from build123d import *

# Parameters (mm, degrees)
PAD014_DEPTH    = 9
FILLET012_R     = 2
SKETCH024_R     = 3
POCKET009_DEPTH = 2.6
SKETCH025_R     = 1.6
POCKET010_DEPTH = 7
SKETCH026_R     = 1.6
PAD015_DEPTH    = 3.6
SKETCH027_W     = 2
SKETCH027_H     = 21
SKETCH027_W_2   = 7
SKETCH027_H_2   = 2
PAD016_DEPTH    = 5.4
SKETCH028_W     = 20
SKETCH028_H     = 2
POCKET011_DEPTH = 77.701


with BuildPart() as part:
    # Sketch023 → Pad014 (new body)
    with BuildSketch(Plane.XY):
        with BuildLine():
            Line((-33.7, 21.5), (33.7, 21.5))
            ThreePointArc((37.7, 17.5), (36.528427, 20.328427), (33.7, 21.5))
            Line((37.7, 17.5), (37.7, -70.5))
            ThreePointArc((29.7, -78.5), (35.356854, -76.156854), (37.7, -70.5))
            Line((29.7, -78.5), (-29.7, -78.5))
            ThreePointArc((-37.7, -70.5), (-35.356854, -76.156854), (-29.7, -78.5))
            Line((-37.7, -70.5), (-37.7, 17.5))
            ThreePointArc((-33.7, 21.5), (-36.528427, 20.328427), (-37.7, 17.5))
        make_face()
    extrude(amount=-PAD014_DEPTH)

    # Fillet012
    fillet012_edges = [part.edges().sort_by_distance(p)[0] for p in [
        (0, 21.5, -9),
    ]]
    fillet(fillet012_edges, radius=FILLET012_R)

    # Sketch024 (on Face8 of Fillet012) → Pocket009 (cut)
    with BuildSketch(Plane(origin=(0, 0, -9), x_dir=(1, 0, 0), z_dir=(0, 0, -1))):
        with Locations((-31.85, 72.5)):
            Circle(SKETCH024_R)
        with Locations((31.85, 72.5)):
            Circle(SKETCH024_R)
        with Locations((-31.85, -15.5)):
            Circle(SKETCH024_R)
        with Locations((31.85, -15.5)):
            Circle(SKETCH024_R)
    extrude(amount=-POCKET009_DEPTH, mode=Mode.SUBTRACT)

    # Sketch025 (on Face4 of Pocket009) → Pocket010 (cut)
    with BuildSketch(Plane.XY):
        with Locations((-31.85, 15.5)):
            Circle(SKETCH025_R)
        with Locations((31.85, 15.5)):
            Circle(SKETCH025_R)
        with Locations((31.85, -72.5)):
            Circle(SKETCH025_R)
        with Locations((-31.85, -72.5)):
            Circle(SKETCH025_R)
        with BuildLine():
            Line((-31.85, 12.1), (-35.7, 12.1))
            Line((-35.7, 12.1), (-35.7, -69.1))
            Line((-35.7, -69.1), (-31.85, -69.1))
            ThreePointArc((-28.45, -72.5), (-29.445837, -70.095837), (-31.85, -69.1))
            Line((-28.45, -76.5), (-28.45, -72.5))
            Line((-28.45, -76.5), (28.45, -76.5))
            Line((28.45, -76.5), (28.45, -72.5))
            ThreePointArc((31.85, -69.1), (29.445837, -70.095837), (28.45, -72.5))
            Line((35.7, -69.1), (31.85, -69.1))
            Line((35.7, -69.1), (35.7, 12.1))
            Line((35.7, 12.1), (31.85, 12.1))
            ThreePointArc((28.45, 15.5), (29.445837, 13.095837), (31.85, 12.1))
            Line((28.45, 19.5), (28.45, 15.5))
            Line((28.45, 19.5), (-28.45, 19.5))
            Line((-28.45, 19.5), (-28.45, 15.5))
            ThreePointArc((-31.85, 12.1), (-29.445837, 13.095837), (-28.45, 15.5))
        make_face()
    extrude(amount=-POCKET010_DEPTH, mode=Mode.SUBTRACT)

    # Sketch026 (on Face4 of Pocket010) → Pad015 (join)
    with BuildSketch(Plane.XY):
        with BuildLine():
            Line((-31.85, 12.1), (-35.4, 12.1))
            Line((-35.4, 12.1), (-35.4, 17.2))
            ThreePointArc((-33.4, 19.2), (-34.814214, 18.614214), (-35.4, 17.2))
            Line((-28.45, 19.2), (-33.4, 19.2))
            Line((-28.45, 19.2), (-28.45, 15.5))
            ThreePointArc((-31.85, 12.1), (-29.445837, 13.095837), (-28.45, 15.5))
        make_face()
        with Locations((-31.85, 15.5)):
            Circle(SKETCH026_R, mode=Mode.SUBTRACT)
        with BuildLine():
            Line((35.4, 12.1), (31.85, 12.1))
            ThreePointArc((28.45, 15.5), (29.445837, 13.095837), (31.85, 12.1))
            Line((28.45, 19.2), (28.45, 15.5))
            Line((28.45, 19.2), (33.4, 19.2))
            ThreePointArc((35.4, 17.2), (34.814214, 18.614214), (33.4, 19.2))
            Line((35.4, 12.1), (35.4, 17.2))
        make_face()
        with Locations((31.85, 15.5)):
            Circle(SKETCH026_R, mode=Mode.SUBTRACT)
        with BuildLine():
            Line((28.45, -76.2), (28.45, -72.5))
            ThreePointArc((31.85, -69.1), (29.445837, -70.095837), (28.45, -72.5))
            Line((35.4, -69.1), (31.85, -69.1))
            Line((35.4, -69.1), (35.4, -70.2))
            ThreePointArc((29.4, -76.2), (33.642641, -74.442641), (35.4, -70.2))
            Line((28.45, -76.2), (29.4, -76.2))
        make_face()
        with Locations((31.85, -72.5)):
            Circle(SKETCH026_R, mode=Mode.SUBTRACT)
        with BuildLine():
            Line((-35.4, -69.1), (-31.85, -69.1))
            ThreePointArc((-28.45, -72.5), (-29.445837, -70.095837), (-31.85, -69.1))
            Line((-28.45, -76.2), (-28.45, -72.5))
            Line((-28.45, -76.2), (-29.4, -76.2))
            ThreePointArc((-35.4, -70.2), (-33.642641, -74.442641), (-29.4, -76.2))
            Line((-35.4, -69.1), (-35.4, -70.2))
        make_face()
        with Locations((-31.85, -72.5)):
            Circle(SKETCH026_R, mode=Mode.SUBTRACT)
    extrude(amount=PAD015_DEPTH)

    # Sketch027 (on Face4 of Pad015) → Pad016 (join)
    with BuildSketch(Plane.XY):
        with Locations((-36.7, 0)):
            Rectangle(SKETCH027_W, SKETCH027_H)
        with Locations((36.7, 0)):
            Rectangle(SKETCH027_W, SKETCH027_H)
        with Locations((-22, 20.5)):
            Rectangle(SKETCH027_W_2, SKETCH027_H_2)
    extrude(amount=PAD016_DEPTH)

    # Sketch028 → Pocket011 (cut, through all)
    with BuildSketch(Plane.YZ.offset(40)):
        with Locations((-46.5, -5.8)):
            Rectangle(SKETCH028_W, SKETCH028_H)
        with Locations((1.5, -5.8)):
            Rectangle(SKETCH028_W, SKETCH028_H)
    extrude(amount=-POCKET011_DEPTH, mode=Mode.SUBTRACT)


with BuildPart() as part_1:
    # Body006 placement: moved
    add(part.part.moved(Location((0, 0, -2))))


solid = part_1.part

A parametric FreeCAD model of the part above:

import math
import FreeCAD as App
import Part
import Sketcher
Q = App.Units.Quantity


def edges_at(feature, points):
    """Names of the edges that pass closest to the given points."""
    edges = feature.Shape.Edges
    near = lambda p: min(range(len(edges)), key=lambda i: edges[i].distToShape(Part.Vertex(*p))[0])
    return sorted({f"Edge{near(p) + 1}" for p in points})

doc = App.newDocument("Part")
body = doc.addObject("PartDesign::Body", "Body")

# Sketch on XY plane
sketch1 = doc.addObject("Sketcher::SketchObject", "Sketch")
body.addObject(sketch1)
sketch1.AttachmentSupport = (doc.XY_Plane, [""])
sketch1.MapMode = "FlatFace"
sketch1.addGeometry([
    Part.LineSegment(App.Vector(33.7, 21.5, 0), App.Vector(-33.7, 21.5, 0)),  # 0
    Part.ArcOfCircle(Part.Circle(App.Vector(-33.7, 17.5, 0), App.Vector(0, 0, 1), 4), math.radians(90), math.radians(180)),  # 1
    Part.LineSegment(App.Vector(-37.7, 17.5, 0), App.Vector(-37.7, -70.5, 0)),  # 2
    Part.ArcOfCircle(Part.Circle(App.Vector(-29.7, -70.5, 0), App.Vector(0, 0, 1), 8), math.radians(-180), math.radians(-90)),  # 3
    Part.LineSegment(App.Vector(-29.7, -78.5, 0), App.Vector(29.7, -78.5, 0)),  # 4
    Part.ArcOfCircle(Part.Circle(App.Vector(29.7, -70.5, 0), App.Vector(0, 0, 1), 8), math.radians(-90), math.radians(0)),  # 5
    Part.LineSegment(App.Vector(37.7, -70.5, 0), App.Vector(37.7, 17.5, 0)),  # 6
    Part.ArcOfCircle(Part.Circle(App.Vector(33.7, 17.5, 0), App.Vector(0, 0, 1), 4), math.radians(0), math.radians(90)),  # 7
], False)
sketch1.addConstraint([
    Sketcher.Constraint("Tangent", 0, 2, 1, 1),
    Sketcher.Constraint("Tangent", 1, 2, 2, 1),
    Sketcher.Constraint("Tangent", 2, 2, 3, 1),
    Sketcher.Constraint("Tangent", 3, 2, 4, 1),
    Sketcher.Constraint("Tangent", 4, 2, 5, 1),
    Sketcher.Constraint("Tangent", 5, 2, 6, 1),
    Sketcher.Constraint("Tangent", 6, 2, 7, 1),
    Sketcher.Constraint("Tangent", 7, 2, 0, 1),
    Sketcher.Constraint("Horizontal", 0),
    Sketcher.Constraint("Vertical", 2),
    Sketcher.Constraint("Horizontal", 4),
    Sketcher.Constraint("Vertical", 6),
    Sketcher.Constraint("Equal", 3, 5),
    Sketcher.Constraint("Equal", 1, 7),
    Sketcher.Constraint("Radius", 1, Q("4 mm")),
    Sketcher.Constraint("Radius", 3, Q("8.000001 mm")),
    Sketcher.Constraint("DistanceY", 2, 2, 2, 1, Q("88 mm")),
    Sketcher.Constraint("DistanceX", 0, 2, 0, 1, Q("67.4 mm")),
    Sketcher.Constraint("DistanceX", 1, 3, -1, 1, Q("33.7 mm")),
    Sketcher.Constraint("DistanceY", -1, 1, 1, 3, Q("17.5 mm")),
])
pad1 = doc.addObject("PartDesign::Pad", "Pad")
body.addObject(pad1)
pad1.Profile = sketch1
pad1.Length = 9
pad1.Reversed = True
doc.recompute()

fillet = doc.addObject("PartDesign::Fillet", "Fillet")
body.addObject(fillet)
fillet.Base = (pad1, edges_at(pad1, [(0, 21.5, -9)]))
fillet.Radius = 2

# Sketch on XY plane
sketch2 = doc.addObject("Sketcher::SketchObject", "Sketch001")
body.addObject(sketch2)
sketch2.AttachmentSupport = (doc.XY_Plane, [""])
sketch2.MapMode = "FlatFace"
sketch2.AttachmentOffset = App.Placement(App.Vector(0, 0, -9), App.Rotation())
sketch2.addGeometry([
    Part.Circle(App.Vector(-31.9, -72.5, 0), App.Vector(0, 0, 1), 3),
    Part.Circle(App.Vector(31.9, -72.5, 0), App.Vector(0, 0, 1), 3),
    Part.Circle(App.Vector(-31.9, 15.5, 0), App.Vector(0, 0, 1), 3),
    Part.Circle(App.Vector(31.9, 15.5, 0), App.Vector(0, 0, 1), 3),
], False)
sketch2.addConstraint([
    Sketcher.Constraint("Equal", 0, 1),
    Sketcher.Constraint("Equal", 1, 2),
    Sketcher.Constraint("Equal", 2, 3),
    Sketcher.Constraint("Symmetric", 0, 3, 1, 3, -2),
    Sketcher.Constraint("Symmetric", 2, 3, 3, 3, -2),
    Sketcher.Constraint("Vertical", 0, 3, 2, 3),
    Sketcher.Constraint("Diameter", 0, Q("6 mm")),
    Sketcher.Constraint("DistanceY", 0, 3, 2, 3, Q("88 mm")),
    Sketcher.Constraint("DistanceY", 0, 3, -1, 1, Q("72.5 mm")),
    Sketcher.Constraint("DistanceX", 0, 3, 1, 3, Q("63.7 mm")),
])
pocket1 = doc.addObject("PartDesign::Pocket", "Pocket")
body.addObject(pocket1)
pocket1.Profile = sketch2
pocket1.Length = 2.6
pocket1.Reversed = True

# Sketch on XY plane
sketch3 = doc.addObject("Sketcher::SketchObject", "Sketch002")
body.addObject(sketch3)
sketch3.AttachmentSupport = (doc.XY_Plane, [""])
sketch3.MapMode = "FlatFace"
sketch3.addGeometry([
    Part.Circle(App.Vector(-31.9, 15.5, 0), App.Vector(0, 0, 1), 1.6),  # 0
    Part.Circle(App.Vector(31.9, 15.5, 0), App.Vector(0, 0, 1), 1.6),  # 1
    Part.Circle(App.Vector(31.9, -72.5, 0), App.Vector(0, 0, 1), 1.6),  # 2
    Part.Circle(App.Vector(-31.9, -72.5, 0), App.Vector(0, 0, 1), 1.6),  # 3
    Part.LineSegment(App.Vector(-31.9, 12.1, 0), App.Vector(-35.7, 12.1, 0)),  # 4
    Part.LineSegment(App.Vector(-35.7, 12.1, 0), App.Vector(-35.7, -69.1, 0)),  # 5
    Part.LineSegment(App.Vector(-35.7, -69.1, 0), App.Vector(-31.9, -69.1, 0)),  # 6
    Part.ArcOfCircle(Part.Circle(App.Vector(-31.9, -72.5, 0), App.Vector(0, 0, 1), 3.4), math.radians(0), math.radians(90)),  # 7
    Part.LineSegment(App.Vector(-28.4, -72.5, 0), App.Vector(-28.4, -76.5, 0)),  # 8
    Part.LineSegment(App.Vector(-28.4, -76.5, 0), App.Vector(28.4, -76.5, 0)),  # 9
    Part.LineSegment(App.Vector(28.4, -76.5, 0), App.Vector(28.4, -72.5, 0)),  # 10
    Part.ArcOfCircle(Part.Circle(App.Vector(31.9, -72.5, 0), App.Vector(0, 0, 1), 3.4), math.radians(90), math.radians(180)),  # 11
    Part.LineSegment(App.Vector(31.9, -69.1, 0), App.Vector(35.7, -69.1, 0)),  # 12
    Part.LineSegment(App.Vector(35.7, -69.1, 0), App.Vector(35.7, 12.1, 0)),  # 13
    Part.LineSegment(App.Vector(35.7, 12.1, 0), App.Vector(31.9, 12.1, 0)),  # 14
    Part.ArcOfCircle(Part.Circle(App.Vector(31.9, 15.5, 0), App.Vector(0, 0, 1), 3.4), math.radians(-180), math.radians(-90)),  # 15
    Part.LineSegment(App.Vector(28.4, 15.5, 0), App.Vector(28.4, 19.5, 0)),  # 16
    Part.LineSegment(App.Vector(28.4, 19.5, 0), App.Vector(-28.4, 19.5, 0)),  # 17
    Part.LineSegment(App.Vector(-28.4, 19.5, 0), App.Vector(-28.4, 15.5, 0)),  # 18
    Part.ArcOfCircle(Part.Circle(App.Vector(-31.9, 15.5, 0), App.Vector(0, 0, 1), 3.4), math.radians(-90), math.radians(0)),  # 19
], False)
sketch3.addConstraint([
    Sketcher.Constraint("Coincident", 4, 2, 5, 1),
    Sketcher.Constraint("Coincident", 5, 2, 6, 1),
    Sketcher.Constraint("Tangent", 6, 2, 7, 2),
    Sketcher.Constraint("Tangent", 7, 1, 8, 1),
    Sketcher.Constraint("Coincident", 8, 2, 9, 1),
    Sketcher.Constraint("Coincident", 9, 2, 10, 1),
    Sketcher.Constraint("Tangent", 10, 2, 11, 2),
    Sketcher.Constraint("Tangent", 11, 1, 12, 1),
    Sketcher.Constraint("Coincident", 12, 2, 13, 1),
    Sketcher.Constraint("Coincident", 13, 2, 14, 1),
    Sketcher.Constraint("Tangent", 14, 2, 15, 2),
    Sketcher.Constraint("Tangent", 15, 1, 16, 1),
    Sketcher.Constraint("Coincident", 16, 2, 17, 1),
    Sketcher.Constraint("Coincident", 17, 2, 18, 1),
    Sketcher.Constraint("Tangent", 18, 2, 19, 2),
    Sketcher.Constraint("Tangent", 19, 1, 4, 1),
    Sketcher.Constraint("Horizontal", 4),
    Sketcher.Constraint("Vertical", 5),
    Sketcher.Constraint("Horizontal", 6),
    Sketcher.Constraint("Vertical", 8),
    Sketcher.Constraint("Horizontal", 9),
    Sketcher.Constraint("Vertical", 10),
    Sketcher.Constraint("Horizontal", 12),
    Sketcher.Constraint("Vertical", 13),
    Sketcher.Constraint("Horizontal", 14),
    Sketcher.Constraint("Vertical", 16),
    Sketcher.Constraint("Horizontal", 17),
    Sketcher.Constraint("Vertical", 18),
    Sketcher.Constraint("Coincident", 7, 3, 3, 3),
    Sketcher.Constraint("Coincident", 11, 3, 2, 3),
    Sketcher.Constraint("Coincident", 15, 3, 1, 3),
    Sketcher.Constraint("Coincident", 19, 3, 0, 3),
    Sketcher.Constraint("Equal", 0, 1),
    Sketcher.Constraint("Equal", 1, 2),
    Sketcher.Constraint("Equal", 2, 3),
    Sketcher.Constraint("Equal", 7, 11),
    Sketcher.Constraint("Equal", 11, 15),
    Sketcher.Constraint("Equal", 15, 19),
    Sketcher.Constraint("Symmetric", 0, 3, 1, 3, -2),
    Sketcher.Constraint("Symmetric", 2, 3, 3, 3, -2),
    Sketcher.Constraint("Vertical", 1, 3, 2, 3),
    Sketcher.Constraint("Equal", 6, 12),
    Sketcher.Constraint("Equal", 10, 16),
    Sketcher.Constraint("Diameter", 0, Q("3.2 mm")),
    Sketcher.Constraint("Radius", 7, Q("3.4 mm")),
    Sketcher.Constraint("DistanceY", 8, 2, 8, 1, Q("4 mm")),
    Sketcher.Constraint("DistanceX", 9, 1, 9, 2, Q("56.9 mm")),
    Sketcher.Constraint("DistanceY", 5, 2, 5, 1, Q("81.2 mm")),
    Sketcher.Constraint("DistanceX", 4, 2, 4, 1, Q("3.85 mm")),
    Sketcher.Constraint("DistanceY", -1, 1, 0, 3, Q("15.5 mm")),
])
pocket2 = doc.addObject("PartDesign::Pocket", "Pocket001")
body.addObject(pocket2)
pocket2.Profile = sketch3
pocket2.Length = 7

# Sketch on XY plane
sketch4 = doc.addObject("Sketcher::SketchObject", "Sketch003")
body.addObject(sketch4)
sketch4.AttachmentSupport = (doc.XY_Plane, [""])
sketch4.MapMode = "FlatFace"
sketch4.addGeometry([
    Part.LineSegment(App.Vector(-35.4, 12.1, 0), App.Vector(-31.9, 12.1, 0)),  # 0
    Part.ArcOfCircle(Part.Circle(App.Vector(-31.9, 15.5, 0), App.Vector(0, 0, 1), 3.4), math.radians(-90), math.radians(0)),  # 1
    Part.LineSegment(App.Vector(-28.4, 15.5, 0), App.Vector(-28.4, 19.2, 0)),  # 2
    Part.LineSegment(App.Vector(-28.4, 19.2, 0), App.Vector(-33.4, 19.2, 0)),  # 3
    Part.ArcOfCircle(Part.Circle(App.Vector(-33.4, 17.2, 0), App.Vector(0, 0, 1), 2), math.radians(90), math.radians(180)),  # 4
    Part.LineSegment(App.Vector(-35.4, 17.2, 0), App.Vector(-35.4, 12.1, 0)),  # 5
    Part.Circle(App.Vector(-31.9, 15.5, 0), App.Vector(0, 0, 1), 1.6),  # 6
    Part.LineSegment(App.Vector(31.9, 12.1, 0), App.Vector(35.4, 12.1, 0)),  # 7
    Part.LineSegment(App.Vector(35.4, 12.1, 0), App.Vector(35.4, 17.2, 0)),  # 8
    Part.ArcOfCircle(Part.Circle(App.Vector(33.4, 17.2, 0), App.Vector(0, 0, 1), 2), math.radians(0), math.radians(90)),  # 9
    Part.LineSegment(App.Vector(33.4, 19.2, 0), App.Vector(28.4, 19.2, 0)),  # 10
    Part.LineSegment(App.Vector(28.4, 19.2, 0), App.Vector(28.4, 15.5, 0)),  # 11
    Part.ArcOfCircle(Part.Circle(App.Vector(31.9, 15.5, 0), App.Vector(0, 0, 1), 3.4), math.radians(-180), math.radians(-90)),  # 12
    Part.Circle(App.Vector(31.9, 15.5, 0), App.Vector(0, 0, 1), 1.6),  # 13
    Part.LineSegment(App.Vector(28.4, -72.5, 0), App.Vector(28.4, -76.2, 0)),  # 14
    Part.LineSegment(App.Vector(28.4, -76.2, 0), App.Vector(29.4, -76.2, 0)),  # 15
    Part.ArcOfCircle(Part.Circle(App.Vector(29.4, -70.2, 0), App.Vector(0, 0, 1), 6), math.radians(-90), math.radians(0)),  # 16
    Part.LineSegment(App.Vector(35.4, -70.2, 0), App.Vector(35.4, -69.1, 0)),  # 17
    Part.LineSegment(App.Vector(35.4, -69.1, 0), App.Vector(31.9, -69.1, 0)),  # 18
    Part.ArcOfCircle(Part.Circle(App.Vector(31.9, -72.5, 0), App.Vector(0, 0, 1), 3.4), math.radians(90), math.radians(180)),  # 19
    Part.Circle(App.Vector(31.9, -72.5, 0), App.Vector(0, 0, 1), 1.6),  # 20
    Part.LineSegment(App.Vector(-31.9, -69.1, 0), App.Vector(-35.4, -69.1, 0)),  # 21
    Part.LineSegment(App.Vector(-35.4, -69.1, 0), App.Vector(-35.4, -70.2, 0)),  # 22
    Part.ArcOfCircle(Part.Circle(App.Vector(-29.4, -70.2, 0), App.Vector(0, 0, 1), 6), math.radians(180), math.radians(270)),  # 23
    Part.LineSegment(App.Vector(-29.4, -76.2, 0), App.Vector(-28.4, -76.2, 0)),  # 24
    Part.LineSegment(App.Vector(-28.4, -76.2, 0), App.Vector(-28.4, -72.5, 0)),  # 25
    Part.ArcOfCircle(Part.Circle(App.Vector(-31.9, -72.5, 0), App.Vector(0, 0, 1), 3.4), math.radians(0), math.radians(90)),  # 26
    Part.Circle(App.Vector(-31.9, -72.5, 0), App.Vector(0, 0, 1), 1.6),  # 27
], False)
sketch4.addConstraint([
    Sketcher.Constraint("Tangent", 0, 2, 1, 1),
    Sketcher.Constraint("Tangent", 1, 2, 2, 1),
    Sketcher.Constraint("Coincident", 2, 2, 3, 1),
    Sketcher.Constraint("Tangent", 3, 2, 4, 1),
    Sketcher.Constraint("Tangent", 4, 2, 5, 1),
    Sketcher.Constraint("Coincident", 5, 2, 0, 1),
    Sketcher.Constraint("Coincident", 7, 2, 8, 1),
    Sketcher.Constraint("Tangent", 8, 2, 9, 1),
    Sketcher.Constraint("Tangent", 9, 2, 10, 1),
    Sketcher.Constraint("Coincident", 10, 2, 11, 1),
    Sketcher.Constraint("Tangent", 11, 2, 12, 1),
    Sketcher.Constraint("Tangent", 12, 2, 7, 1),
    Sketcher.Constraint("Coincident", 14, 2, 15, 1),
    Sketcher.Constraint("Tangent", 15, 2, 16, 1),
    Sketcher.Constraint("Tangent", 16, 2, 17, 1),
    Sketcher.Constraint("Coincident", 17, 2, 18, 1),
    Sketcher.Constraint("Tangent", 18, 2, 19, 1),
    Sketcher.Constraint("Tangent", 19, 2, 14, 1),
    Sketcher.Constraint("Coincident", 21, 2, 22, 1),
    Sketcher.Constraint("Tangent", 22, 2, 23, 1),
    Sketcher.Constraint("Tangent", 23, 2, 24, 1),
    Sketcher.Constraint("Coincident", 24, 2, 25, 1),
    Sketcher.Constraint("Tangent", 25, 2, 26, 1),
    Sketcher.Constraint("Tangent", 26, 2, 21, 1),
    Sketcher.Constraint("Horizontal", 0),
    Sketcher.Constraint("Vertical", 2),
    Sketcher.Constraint("Horizontal", 3),
    Sketcher.Constraint("Vertical", 5),
    Sketcher.Constraint("Horizontal", 7),
    Sketcher.Constraint("Vertical", 8),
    Sketcher.Constraint("Horizontal", 10),
    Sketcher.Constraint("Vertical", 11),
    Sketcher.Constraint("Vertical", 14),
    Sketcher.Constraint("Horizontal", 15),
    Sketcher.Constraint("Vertical", 17),
    Sketcher.Constraint("Horizontal", 18),
    Sketcher.Constraint("Horizontal", 21),
    Sketcher.Constraint("Vertical", 22),
    Sketcher.Constraint("Horizontal", 24),
    Sketcher.Constraint("Vertical", 25),
    Sketcher.Constraint("Coincident", 6, 3, 1, 3),
    Sketcher.Constraint("Coincident", 13, 3, 12, 3),
    Sketcher.Constraint("Coincident", 20, 3, 19, 3),
    Sketcher.Constraint("Coincident", 27, 3, 26, 3),
    Sketcher.Constraint("Equal", 4, 9),
    Sketcher.Constraint("Equal", 1, 12),
    Sketcher.Constraint("Equal", 6, 13),
    Sketcher.Constraint("Equal", 12, 19),
    Sketcher.Constraint("Equal", 13, 20),
    Sketcher.Constraint("Equal", 16, 23),
    Sketcher.Constraint("Equal", 19, 26),
    Sketcher.Constraint("Equal", 20, 27),
    Sketcher.Constraint("Symmetric", 4, 3, 9, 3, -2),
    Sketcher.Constraint("Symmetric", 1, 3, 12, 3, -2),
    Sketcher.Constraint("Symmetric", 16, 3, 23, 3, -2),
    Sketcher.Constraint("Symmetric", 19, 3, 26, 3, -2),
    Sketcher.Constraint("Vertical", 13, 3, 19, 3),
    Sketcher.Constraint("Vertical", 8, 2, 16, 2),
    Sketcher.Constraint("Equal", 11, 14),
    Sketcher.Constraint("Radius", 4, Q("1.999999 mm")),
    Sketcher.Constraint("Radius", 16, Q("5.999999 mm")),
    Sketcher.Constraint("Diameter", 6, Q("3.2 mm")),
    Sketcher.Constraint("Radius", 1, Q("3.4 mm")),
    Sketcher.Constraint("DistanceY", 2, 1, 2, 2, Q("3.7 mm")),
    Sketcher.Constraint("DistanceY", 19, 3, 13, 3, Q("88 mm")),
    Sketcher.Constraint("DistanceX", 0, 1, 0, 2, Q("3.55 mm")),
    Sketcher.Constraint("DistanceY", -1, 1, 1, 3, Q("15.5 mm")),
    Sketcher.Constraint("DistanceX", 4, 3, -1, 1, Q("33.400001 mm")),
])
pad2 = doc.addObject("PartDesign::Pad", "Pad001")
body.addObject(pad2)
pad2.Profile = sketch4
pad2.Length = 3.6

# Sketch on XY plane
sketch5 = doc.addObject("Sketcher::SketchObject", "Sketch004")
body.addObject(sketch5)
sketch5.AttachmentSupport = (doc.XY_Plane, [""])
sketch5.MapMode = "FlatFace"
sketch5.addGeometry([
    Part.LineSegment(App.Vector(-37.7, 10.5, 0), App.Vector(-37.7, -10.5, 0)),  # 0
    Part.LineSegment(App.Vector(-37.7, -10.5, 0), App.Vector(-35.7, -10.5, 0)),  # 1
    Part.LineSegment(App.Vector(-35.7, -10.5, 0), App.Vector(-35.7, 10.5, 0)),  # 2
    Part.LineSegment(App.Vector(-35.7, 10.5, 0), App.Vector(-37.7, 10.5, 0)),  # 3
    Part.LineSegment(App.Vector(35.7, 10.5, 0), App.Vector(35.7, -10.5, 0)),  # 4
    Part.LineSegment(App.Vector(35.7, -10.5, 0), App.Vector(37.7, -10.5, 0)),  # 5
    Part.LineSegment(App.Vector(37.7, -10.5, 0), App.Vector(37.7, 10.5, 0)),  # 6
    Part.LineSegment(App.Vector(37.7, 10.5, 0), App.Vector(35.7, 10.5, 0)),  # 7
    Part.LineSegment(App.Vector(-25.5, 21.5, 0), App.Vector(-25.5, 19.5, 0)),  # 8
    Part.LineSegment(App.Vector(-25.5, 19.5, 0), App.Vector(-18.5, 19.5, 0)),  # 9
    Part.LineSegment(App.Vector(-18.5, 19.5, 0), App.Vector(-18.5, 21.5, 0)),  # 10
    Part.LineSegment(App.Vector(-18.5, 21.5, 0), App.Vector(-25.5, 21.5, 0)),  # 11
], False)
sketch5.addConstraint([
    Sketcher.Constraint("Coincident", 0, 2, 1, 1),
    Sketcher.Constraint("Coincident", 1, 2, 2, 1),
    Sketcher.Constraint("Coincident", 2, 2, 3, 1),
    Sketcher.Constraint("Coincident", 3, 2, 0, 1),
    Sketcher.Constraint("Coincident", 4, 2, 5, 1),
    Sketcher.Constraint("Coincident", 5, 2, 6, 1),
    Sketcher.Constraint("Coincident", 6, 2, 7, 1),
    Sketcher.Constraint("Coincident", 7, 2, 4, 1),
    Sketcher.Constraint("Coincident", 8, 2, 9, 1),
    Sketcher.Constraint("Coincident", 9, 2, 10, 1),
    Sketcher.Constraint("Coincident", 10, 2, 11, 1),
    Sketcher.Constraint("Coincident", 11, 2, 8, 1),
    Sketcher.Constraint("Vertical", 0),
    Sketcher.Constraint("Horizontal", 1),
    Sketcher.Constraint("Vertical", 2),
    Sketcher.Constraint("Horizontal", 3),
    Sketcher.Constraint("Vertical", 4),
    Sketcher.Constraint("Horizontal", 5),
    Sketcher.Constraint("Vertical", 6),
    Sketcher.Constraint("Horizontal", 7),
    Sketcher.Constraint("Vertical", 8),
    Sketcher.Constraint("Horizontal", 9),
    Sketcher.Constraint("Vertical", 10),
    Sketcher.Constraint("Horizontal", 11),
    Sketcher.Constraint("Symmetric", 2, 2, 4, 2, -1, 1),
    Sketcher.Constraint("Symmetric", 0, 2, 6, 2, -1, 1),
    Sketcher.Constraint("Horizontal", 1, 2, 4, 2),
    Sketcher.Constraint("Equal", 7, 8),
    Sketcher.Constraint("DistanceX", 1, 1, 1, 2, Q("2 mm")),
    Sketcher.Constraint("DistanceX", 9, 1, 9, 2, Q("7 mm")),
    Sketcher.Constraint("DistanceY", 0, 2, 0, 1, Q("21 mm")),
    Sketcher.Constraint("DistanceY", 2, 2, 8, 2, Q("9 mm")),
    Sketcher.Constraint("DistanceX", 0, 2, -1, 1, Q("37.7 mm")),
    Sketcher.Constraint("DistanceX", 8, 2, -1, 1, Q("25.5 mm")),
])
pad3 = doc.addObject("PartDesign::Pad", "Pad002")
body.addObject(pad3)
pad3.Profile = sketch5
pad3.Length = 5.4

# Sketch on YZ plane
sketch6 = doc.addObject("Sketcher::SketchObject", "Sketch005")
body.addObject(sketch6)
sketch6.AttachmentSupport = (doc.YZ_Plane, [""])
sketch6.MapMode = "FlatFace"
sketch6.AttachmentOffset = App.Placement(App.Vector(0, 0, 40), App.Rotation())
sketch6.addGeometry([
    Part.LineSegment(App.Vector(-56.5, -4.8, 0), App.Vector(-56.5, -6.8, 0)),  # 0
    Part.LineSegment(App.Vector(-56.5, -6.8, 0), App.Vector(-36.5, -6.8, 0)),  # 1
    Part.LineSegment(App.Vector(-36.5, -6.8, 0), App.Vector(-36.5, -4.8, 0)),  # 2
    Part.LineSegment(App.Vector(-36.5, -4.8, 0), App.Vector(-56.5, -4.8, 0)),  # 3
    Part.LineSegment(App.Vector(-8.5, -4.8, 0), App.Vector(-8.5, -6.8, 0)),  # 4
    Part.LineSegment(App.Vector(-8.5, -6.8, 0), App.Vector(11.5, -6.8, 0)),  # 5
    Part.LineSegment(App.Vector(11.5, -6.8, 0), App.Vector(11.5, -4.8, 0)),  # 6
    Part.LineSegment(App.Vector(11.5, -4.8, 0), App.Vector(-8.5, -4.8, 0)),  # 7
], False)
sketch6.addConstraint([
    Sketcher.Constraint("Coincident", 0, 2, 1, 1),
    Sketcher.Constraint("Coincident", 1, 2, 2, 1),
    Sketcher.Constraint("Coincident", 2, 2, 3, 1),
    Sketcher.Constraint("Coincident", 3, 2, 0, 1),
    Sketcher.Constraint("Coincident", 4, 2, 5, 1),
    Sketcher.Constraint("Coincident", 5, 2, 6, 1),
    Sketcher.Constraint("Coincident", 6, 2, 7, 1),
    Sketcher.Constraint("Coincident", 7, 2, 4, 1),
    Sketcher.Constraint("Vertical", 0),
    Sketcher.Constraint("Horizontal", 1),
    Sketcher.Constraint("Vertical", 2),
    Sketcher.Constraint("Horizontal", 3),
    Sketcher.Constraint("Vertical", 4),
    Sketcher.Constraint("Horizontal", 5),
    Sketcher.Constraint("Vertical", 6),
    Sketcher.Constraint("Horizontal", 7),
    Sketcher.Constraint("Horizontal", 1, 2, 4, 2),
    Sketcher.Constraint("Horizontal", 3, 2, 6, 2),
    Sketcher.Constraint("Equal", 3, 5),
    Sketcher.Constraint("DistanceX", 1, 1, 1, 2, Q("20 mm")),
    Sketcher.Constraint("DistanceY", 0, 2, 0, 1, Q("2 mm")),
    Sketcher.Constraint("DistanceX", 1, 2, 4, 2, Q("28 mm")),
    Sketcher.Constraint("DistanceX", 0, 2, -1, 1, Q("56.5 mm")),
    Sketcher.Constraint("DistanceY", 0, 2, -1, 1, Q("6.8 mm")),
])
pocket3 = doc.addObject("PartDesign::Pocket", "Pocket002")
body.addObject(pocket3)
pocket3.Profile = sketch6
pocket3.Type = "ThroughAll"
body2 = doc.addObject("PartDesign::Body", "Body001")
doc.recompute()

body.Placement = App.Placement(App.Vector(0, 0, -2), App.Rotation(App.Vector(0, 0, 1), 0))
boolean = doc.addObject("PartDesign::Boolean", "Boolean")
body2.addObject(boolean)
boolean.Type = "Fuse"
boolean.addObjects([body])

doc.recompute()
